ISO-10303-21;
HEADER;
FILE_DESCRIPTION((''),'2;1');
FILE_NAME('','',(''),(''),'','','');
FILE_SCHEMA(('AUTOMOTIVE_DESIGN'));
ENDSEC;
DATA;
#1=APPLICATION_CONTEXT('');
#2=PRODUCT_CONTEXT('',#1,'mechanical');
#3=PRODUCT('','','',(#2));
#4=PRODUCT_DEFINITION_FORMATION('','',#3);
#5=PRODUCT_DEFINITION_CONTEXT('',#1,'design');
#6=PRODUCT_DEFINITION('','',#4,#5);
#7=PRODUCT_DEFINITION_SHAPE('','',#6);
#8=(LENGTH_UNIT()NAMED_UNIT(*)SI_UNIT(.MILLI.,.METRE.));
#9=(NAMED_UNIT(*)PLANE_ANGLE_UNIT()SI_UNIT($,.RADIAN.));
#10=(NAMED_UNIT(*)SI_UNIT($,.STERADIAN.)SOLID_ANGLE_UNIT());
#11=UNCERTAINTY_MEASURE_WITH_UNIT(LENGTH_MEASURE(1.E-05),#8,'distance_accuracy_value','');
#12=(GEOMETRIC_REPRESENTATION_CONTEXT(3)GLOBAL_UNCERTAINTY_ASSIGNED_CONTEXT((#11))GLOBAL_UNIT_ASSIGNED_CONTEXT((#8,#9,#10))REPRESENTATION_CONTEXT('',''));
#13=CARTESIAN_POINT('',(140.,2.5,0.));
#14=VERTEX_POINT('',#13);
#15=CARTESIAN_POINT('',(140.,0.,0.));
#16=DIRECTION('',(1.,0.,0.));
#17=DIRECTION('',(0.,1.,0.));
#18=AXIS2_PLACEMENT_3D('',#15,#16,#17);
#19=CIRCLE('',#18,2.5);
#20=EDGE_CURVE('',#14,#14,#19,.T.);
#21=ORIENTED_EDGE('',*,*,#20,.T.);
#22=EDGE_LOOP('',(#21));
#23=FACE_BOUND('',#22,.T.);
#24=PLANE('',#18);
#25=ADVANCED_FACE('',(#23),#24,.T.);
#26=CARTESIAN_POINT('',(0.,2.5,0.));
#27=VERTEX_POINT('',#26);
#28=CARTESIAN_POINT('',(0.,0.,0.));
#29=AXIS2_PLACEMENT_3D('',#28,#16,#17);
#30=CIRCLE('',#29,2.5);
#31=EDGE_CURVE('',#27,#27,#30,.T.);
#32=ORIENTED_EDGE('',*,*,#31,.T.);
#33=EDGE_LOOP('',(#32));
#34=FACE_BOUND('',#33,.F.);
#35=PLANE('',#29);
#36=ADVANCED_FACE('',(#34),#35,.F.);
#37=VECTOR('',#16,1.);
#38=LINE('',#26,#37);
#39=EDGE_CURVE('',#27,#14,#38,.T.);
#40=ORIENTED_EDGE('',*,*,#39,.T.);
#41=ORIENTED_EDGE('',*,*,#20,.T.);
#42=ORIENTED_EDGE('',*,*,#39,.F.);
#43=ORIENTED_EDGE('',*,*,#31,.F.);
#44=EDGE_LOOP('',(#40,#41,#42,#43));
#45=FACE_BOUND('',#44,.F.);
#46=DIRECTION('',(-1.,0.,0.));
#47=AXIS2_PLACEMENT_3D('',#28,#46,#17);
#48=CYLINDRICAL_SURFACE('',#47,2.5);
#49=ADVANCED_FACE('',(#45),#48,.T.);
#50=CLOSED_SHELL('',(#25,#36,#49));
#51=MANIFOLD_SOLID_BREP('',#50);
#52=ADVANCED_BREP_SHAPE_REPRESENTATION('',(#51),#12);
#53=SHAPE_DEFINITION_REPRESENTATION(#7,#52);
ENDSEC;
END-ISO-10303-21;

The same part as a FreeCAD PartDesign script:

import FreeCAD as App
import Part
import Sketcher

doc = App.newDocument("Part")
params = doc.addObject("Spreadsheet::Sheet", "Params")
for row, (alias, value) in enumerate([
    ("sketch1_diameter", "5 mm"),
    ("pad1_length", "140 mm"),
], start=1):
    params.set(f"A{row}", alias)
    params.set(f"B{row}", "=" + value)
    params.setAlias(f"B{row}", alias)

body = doc.addObject("PartDesign::Body", "Body")

sketch1 = body.newObject("Sketcher::SketchObject", "Sketch")
sketch1.AttachmentSupport = (doc.getObject("YZ_Plane"), [""])
sketch1.MapMode = "FlatFace"
sketch1.addGeometry(Part.Circle(App.Vector(0, 0, 0), App.Vector(0, 0, 1), 2.5), False)
sketch1.addConstraint([
    Sketcher.Constraint("Coincident", 0, 3, -1, 1),
    Sketcher.Constraint("Diameter", 0, 5.0),
])
sketch1.setExpression("Constraints[1]", "Params.sketch1_diameter")
pad1 = body.newObject("PartDesign::Pad", "Pad")
pad1.Profile = sketch1
pad1.setExpression("Length", "Params.pad1_length")

doc.recompute()
